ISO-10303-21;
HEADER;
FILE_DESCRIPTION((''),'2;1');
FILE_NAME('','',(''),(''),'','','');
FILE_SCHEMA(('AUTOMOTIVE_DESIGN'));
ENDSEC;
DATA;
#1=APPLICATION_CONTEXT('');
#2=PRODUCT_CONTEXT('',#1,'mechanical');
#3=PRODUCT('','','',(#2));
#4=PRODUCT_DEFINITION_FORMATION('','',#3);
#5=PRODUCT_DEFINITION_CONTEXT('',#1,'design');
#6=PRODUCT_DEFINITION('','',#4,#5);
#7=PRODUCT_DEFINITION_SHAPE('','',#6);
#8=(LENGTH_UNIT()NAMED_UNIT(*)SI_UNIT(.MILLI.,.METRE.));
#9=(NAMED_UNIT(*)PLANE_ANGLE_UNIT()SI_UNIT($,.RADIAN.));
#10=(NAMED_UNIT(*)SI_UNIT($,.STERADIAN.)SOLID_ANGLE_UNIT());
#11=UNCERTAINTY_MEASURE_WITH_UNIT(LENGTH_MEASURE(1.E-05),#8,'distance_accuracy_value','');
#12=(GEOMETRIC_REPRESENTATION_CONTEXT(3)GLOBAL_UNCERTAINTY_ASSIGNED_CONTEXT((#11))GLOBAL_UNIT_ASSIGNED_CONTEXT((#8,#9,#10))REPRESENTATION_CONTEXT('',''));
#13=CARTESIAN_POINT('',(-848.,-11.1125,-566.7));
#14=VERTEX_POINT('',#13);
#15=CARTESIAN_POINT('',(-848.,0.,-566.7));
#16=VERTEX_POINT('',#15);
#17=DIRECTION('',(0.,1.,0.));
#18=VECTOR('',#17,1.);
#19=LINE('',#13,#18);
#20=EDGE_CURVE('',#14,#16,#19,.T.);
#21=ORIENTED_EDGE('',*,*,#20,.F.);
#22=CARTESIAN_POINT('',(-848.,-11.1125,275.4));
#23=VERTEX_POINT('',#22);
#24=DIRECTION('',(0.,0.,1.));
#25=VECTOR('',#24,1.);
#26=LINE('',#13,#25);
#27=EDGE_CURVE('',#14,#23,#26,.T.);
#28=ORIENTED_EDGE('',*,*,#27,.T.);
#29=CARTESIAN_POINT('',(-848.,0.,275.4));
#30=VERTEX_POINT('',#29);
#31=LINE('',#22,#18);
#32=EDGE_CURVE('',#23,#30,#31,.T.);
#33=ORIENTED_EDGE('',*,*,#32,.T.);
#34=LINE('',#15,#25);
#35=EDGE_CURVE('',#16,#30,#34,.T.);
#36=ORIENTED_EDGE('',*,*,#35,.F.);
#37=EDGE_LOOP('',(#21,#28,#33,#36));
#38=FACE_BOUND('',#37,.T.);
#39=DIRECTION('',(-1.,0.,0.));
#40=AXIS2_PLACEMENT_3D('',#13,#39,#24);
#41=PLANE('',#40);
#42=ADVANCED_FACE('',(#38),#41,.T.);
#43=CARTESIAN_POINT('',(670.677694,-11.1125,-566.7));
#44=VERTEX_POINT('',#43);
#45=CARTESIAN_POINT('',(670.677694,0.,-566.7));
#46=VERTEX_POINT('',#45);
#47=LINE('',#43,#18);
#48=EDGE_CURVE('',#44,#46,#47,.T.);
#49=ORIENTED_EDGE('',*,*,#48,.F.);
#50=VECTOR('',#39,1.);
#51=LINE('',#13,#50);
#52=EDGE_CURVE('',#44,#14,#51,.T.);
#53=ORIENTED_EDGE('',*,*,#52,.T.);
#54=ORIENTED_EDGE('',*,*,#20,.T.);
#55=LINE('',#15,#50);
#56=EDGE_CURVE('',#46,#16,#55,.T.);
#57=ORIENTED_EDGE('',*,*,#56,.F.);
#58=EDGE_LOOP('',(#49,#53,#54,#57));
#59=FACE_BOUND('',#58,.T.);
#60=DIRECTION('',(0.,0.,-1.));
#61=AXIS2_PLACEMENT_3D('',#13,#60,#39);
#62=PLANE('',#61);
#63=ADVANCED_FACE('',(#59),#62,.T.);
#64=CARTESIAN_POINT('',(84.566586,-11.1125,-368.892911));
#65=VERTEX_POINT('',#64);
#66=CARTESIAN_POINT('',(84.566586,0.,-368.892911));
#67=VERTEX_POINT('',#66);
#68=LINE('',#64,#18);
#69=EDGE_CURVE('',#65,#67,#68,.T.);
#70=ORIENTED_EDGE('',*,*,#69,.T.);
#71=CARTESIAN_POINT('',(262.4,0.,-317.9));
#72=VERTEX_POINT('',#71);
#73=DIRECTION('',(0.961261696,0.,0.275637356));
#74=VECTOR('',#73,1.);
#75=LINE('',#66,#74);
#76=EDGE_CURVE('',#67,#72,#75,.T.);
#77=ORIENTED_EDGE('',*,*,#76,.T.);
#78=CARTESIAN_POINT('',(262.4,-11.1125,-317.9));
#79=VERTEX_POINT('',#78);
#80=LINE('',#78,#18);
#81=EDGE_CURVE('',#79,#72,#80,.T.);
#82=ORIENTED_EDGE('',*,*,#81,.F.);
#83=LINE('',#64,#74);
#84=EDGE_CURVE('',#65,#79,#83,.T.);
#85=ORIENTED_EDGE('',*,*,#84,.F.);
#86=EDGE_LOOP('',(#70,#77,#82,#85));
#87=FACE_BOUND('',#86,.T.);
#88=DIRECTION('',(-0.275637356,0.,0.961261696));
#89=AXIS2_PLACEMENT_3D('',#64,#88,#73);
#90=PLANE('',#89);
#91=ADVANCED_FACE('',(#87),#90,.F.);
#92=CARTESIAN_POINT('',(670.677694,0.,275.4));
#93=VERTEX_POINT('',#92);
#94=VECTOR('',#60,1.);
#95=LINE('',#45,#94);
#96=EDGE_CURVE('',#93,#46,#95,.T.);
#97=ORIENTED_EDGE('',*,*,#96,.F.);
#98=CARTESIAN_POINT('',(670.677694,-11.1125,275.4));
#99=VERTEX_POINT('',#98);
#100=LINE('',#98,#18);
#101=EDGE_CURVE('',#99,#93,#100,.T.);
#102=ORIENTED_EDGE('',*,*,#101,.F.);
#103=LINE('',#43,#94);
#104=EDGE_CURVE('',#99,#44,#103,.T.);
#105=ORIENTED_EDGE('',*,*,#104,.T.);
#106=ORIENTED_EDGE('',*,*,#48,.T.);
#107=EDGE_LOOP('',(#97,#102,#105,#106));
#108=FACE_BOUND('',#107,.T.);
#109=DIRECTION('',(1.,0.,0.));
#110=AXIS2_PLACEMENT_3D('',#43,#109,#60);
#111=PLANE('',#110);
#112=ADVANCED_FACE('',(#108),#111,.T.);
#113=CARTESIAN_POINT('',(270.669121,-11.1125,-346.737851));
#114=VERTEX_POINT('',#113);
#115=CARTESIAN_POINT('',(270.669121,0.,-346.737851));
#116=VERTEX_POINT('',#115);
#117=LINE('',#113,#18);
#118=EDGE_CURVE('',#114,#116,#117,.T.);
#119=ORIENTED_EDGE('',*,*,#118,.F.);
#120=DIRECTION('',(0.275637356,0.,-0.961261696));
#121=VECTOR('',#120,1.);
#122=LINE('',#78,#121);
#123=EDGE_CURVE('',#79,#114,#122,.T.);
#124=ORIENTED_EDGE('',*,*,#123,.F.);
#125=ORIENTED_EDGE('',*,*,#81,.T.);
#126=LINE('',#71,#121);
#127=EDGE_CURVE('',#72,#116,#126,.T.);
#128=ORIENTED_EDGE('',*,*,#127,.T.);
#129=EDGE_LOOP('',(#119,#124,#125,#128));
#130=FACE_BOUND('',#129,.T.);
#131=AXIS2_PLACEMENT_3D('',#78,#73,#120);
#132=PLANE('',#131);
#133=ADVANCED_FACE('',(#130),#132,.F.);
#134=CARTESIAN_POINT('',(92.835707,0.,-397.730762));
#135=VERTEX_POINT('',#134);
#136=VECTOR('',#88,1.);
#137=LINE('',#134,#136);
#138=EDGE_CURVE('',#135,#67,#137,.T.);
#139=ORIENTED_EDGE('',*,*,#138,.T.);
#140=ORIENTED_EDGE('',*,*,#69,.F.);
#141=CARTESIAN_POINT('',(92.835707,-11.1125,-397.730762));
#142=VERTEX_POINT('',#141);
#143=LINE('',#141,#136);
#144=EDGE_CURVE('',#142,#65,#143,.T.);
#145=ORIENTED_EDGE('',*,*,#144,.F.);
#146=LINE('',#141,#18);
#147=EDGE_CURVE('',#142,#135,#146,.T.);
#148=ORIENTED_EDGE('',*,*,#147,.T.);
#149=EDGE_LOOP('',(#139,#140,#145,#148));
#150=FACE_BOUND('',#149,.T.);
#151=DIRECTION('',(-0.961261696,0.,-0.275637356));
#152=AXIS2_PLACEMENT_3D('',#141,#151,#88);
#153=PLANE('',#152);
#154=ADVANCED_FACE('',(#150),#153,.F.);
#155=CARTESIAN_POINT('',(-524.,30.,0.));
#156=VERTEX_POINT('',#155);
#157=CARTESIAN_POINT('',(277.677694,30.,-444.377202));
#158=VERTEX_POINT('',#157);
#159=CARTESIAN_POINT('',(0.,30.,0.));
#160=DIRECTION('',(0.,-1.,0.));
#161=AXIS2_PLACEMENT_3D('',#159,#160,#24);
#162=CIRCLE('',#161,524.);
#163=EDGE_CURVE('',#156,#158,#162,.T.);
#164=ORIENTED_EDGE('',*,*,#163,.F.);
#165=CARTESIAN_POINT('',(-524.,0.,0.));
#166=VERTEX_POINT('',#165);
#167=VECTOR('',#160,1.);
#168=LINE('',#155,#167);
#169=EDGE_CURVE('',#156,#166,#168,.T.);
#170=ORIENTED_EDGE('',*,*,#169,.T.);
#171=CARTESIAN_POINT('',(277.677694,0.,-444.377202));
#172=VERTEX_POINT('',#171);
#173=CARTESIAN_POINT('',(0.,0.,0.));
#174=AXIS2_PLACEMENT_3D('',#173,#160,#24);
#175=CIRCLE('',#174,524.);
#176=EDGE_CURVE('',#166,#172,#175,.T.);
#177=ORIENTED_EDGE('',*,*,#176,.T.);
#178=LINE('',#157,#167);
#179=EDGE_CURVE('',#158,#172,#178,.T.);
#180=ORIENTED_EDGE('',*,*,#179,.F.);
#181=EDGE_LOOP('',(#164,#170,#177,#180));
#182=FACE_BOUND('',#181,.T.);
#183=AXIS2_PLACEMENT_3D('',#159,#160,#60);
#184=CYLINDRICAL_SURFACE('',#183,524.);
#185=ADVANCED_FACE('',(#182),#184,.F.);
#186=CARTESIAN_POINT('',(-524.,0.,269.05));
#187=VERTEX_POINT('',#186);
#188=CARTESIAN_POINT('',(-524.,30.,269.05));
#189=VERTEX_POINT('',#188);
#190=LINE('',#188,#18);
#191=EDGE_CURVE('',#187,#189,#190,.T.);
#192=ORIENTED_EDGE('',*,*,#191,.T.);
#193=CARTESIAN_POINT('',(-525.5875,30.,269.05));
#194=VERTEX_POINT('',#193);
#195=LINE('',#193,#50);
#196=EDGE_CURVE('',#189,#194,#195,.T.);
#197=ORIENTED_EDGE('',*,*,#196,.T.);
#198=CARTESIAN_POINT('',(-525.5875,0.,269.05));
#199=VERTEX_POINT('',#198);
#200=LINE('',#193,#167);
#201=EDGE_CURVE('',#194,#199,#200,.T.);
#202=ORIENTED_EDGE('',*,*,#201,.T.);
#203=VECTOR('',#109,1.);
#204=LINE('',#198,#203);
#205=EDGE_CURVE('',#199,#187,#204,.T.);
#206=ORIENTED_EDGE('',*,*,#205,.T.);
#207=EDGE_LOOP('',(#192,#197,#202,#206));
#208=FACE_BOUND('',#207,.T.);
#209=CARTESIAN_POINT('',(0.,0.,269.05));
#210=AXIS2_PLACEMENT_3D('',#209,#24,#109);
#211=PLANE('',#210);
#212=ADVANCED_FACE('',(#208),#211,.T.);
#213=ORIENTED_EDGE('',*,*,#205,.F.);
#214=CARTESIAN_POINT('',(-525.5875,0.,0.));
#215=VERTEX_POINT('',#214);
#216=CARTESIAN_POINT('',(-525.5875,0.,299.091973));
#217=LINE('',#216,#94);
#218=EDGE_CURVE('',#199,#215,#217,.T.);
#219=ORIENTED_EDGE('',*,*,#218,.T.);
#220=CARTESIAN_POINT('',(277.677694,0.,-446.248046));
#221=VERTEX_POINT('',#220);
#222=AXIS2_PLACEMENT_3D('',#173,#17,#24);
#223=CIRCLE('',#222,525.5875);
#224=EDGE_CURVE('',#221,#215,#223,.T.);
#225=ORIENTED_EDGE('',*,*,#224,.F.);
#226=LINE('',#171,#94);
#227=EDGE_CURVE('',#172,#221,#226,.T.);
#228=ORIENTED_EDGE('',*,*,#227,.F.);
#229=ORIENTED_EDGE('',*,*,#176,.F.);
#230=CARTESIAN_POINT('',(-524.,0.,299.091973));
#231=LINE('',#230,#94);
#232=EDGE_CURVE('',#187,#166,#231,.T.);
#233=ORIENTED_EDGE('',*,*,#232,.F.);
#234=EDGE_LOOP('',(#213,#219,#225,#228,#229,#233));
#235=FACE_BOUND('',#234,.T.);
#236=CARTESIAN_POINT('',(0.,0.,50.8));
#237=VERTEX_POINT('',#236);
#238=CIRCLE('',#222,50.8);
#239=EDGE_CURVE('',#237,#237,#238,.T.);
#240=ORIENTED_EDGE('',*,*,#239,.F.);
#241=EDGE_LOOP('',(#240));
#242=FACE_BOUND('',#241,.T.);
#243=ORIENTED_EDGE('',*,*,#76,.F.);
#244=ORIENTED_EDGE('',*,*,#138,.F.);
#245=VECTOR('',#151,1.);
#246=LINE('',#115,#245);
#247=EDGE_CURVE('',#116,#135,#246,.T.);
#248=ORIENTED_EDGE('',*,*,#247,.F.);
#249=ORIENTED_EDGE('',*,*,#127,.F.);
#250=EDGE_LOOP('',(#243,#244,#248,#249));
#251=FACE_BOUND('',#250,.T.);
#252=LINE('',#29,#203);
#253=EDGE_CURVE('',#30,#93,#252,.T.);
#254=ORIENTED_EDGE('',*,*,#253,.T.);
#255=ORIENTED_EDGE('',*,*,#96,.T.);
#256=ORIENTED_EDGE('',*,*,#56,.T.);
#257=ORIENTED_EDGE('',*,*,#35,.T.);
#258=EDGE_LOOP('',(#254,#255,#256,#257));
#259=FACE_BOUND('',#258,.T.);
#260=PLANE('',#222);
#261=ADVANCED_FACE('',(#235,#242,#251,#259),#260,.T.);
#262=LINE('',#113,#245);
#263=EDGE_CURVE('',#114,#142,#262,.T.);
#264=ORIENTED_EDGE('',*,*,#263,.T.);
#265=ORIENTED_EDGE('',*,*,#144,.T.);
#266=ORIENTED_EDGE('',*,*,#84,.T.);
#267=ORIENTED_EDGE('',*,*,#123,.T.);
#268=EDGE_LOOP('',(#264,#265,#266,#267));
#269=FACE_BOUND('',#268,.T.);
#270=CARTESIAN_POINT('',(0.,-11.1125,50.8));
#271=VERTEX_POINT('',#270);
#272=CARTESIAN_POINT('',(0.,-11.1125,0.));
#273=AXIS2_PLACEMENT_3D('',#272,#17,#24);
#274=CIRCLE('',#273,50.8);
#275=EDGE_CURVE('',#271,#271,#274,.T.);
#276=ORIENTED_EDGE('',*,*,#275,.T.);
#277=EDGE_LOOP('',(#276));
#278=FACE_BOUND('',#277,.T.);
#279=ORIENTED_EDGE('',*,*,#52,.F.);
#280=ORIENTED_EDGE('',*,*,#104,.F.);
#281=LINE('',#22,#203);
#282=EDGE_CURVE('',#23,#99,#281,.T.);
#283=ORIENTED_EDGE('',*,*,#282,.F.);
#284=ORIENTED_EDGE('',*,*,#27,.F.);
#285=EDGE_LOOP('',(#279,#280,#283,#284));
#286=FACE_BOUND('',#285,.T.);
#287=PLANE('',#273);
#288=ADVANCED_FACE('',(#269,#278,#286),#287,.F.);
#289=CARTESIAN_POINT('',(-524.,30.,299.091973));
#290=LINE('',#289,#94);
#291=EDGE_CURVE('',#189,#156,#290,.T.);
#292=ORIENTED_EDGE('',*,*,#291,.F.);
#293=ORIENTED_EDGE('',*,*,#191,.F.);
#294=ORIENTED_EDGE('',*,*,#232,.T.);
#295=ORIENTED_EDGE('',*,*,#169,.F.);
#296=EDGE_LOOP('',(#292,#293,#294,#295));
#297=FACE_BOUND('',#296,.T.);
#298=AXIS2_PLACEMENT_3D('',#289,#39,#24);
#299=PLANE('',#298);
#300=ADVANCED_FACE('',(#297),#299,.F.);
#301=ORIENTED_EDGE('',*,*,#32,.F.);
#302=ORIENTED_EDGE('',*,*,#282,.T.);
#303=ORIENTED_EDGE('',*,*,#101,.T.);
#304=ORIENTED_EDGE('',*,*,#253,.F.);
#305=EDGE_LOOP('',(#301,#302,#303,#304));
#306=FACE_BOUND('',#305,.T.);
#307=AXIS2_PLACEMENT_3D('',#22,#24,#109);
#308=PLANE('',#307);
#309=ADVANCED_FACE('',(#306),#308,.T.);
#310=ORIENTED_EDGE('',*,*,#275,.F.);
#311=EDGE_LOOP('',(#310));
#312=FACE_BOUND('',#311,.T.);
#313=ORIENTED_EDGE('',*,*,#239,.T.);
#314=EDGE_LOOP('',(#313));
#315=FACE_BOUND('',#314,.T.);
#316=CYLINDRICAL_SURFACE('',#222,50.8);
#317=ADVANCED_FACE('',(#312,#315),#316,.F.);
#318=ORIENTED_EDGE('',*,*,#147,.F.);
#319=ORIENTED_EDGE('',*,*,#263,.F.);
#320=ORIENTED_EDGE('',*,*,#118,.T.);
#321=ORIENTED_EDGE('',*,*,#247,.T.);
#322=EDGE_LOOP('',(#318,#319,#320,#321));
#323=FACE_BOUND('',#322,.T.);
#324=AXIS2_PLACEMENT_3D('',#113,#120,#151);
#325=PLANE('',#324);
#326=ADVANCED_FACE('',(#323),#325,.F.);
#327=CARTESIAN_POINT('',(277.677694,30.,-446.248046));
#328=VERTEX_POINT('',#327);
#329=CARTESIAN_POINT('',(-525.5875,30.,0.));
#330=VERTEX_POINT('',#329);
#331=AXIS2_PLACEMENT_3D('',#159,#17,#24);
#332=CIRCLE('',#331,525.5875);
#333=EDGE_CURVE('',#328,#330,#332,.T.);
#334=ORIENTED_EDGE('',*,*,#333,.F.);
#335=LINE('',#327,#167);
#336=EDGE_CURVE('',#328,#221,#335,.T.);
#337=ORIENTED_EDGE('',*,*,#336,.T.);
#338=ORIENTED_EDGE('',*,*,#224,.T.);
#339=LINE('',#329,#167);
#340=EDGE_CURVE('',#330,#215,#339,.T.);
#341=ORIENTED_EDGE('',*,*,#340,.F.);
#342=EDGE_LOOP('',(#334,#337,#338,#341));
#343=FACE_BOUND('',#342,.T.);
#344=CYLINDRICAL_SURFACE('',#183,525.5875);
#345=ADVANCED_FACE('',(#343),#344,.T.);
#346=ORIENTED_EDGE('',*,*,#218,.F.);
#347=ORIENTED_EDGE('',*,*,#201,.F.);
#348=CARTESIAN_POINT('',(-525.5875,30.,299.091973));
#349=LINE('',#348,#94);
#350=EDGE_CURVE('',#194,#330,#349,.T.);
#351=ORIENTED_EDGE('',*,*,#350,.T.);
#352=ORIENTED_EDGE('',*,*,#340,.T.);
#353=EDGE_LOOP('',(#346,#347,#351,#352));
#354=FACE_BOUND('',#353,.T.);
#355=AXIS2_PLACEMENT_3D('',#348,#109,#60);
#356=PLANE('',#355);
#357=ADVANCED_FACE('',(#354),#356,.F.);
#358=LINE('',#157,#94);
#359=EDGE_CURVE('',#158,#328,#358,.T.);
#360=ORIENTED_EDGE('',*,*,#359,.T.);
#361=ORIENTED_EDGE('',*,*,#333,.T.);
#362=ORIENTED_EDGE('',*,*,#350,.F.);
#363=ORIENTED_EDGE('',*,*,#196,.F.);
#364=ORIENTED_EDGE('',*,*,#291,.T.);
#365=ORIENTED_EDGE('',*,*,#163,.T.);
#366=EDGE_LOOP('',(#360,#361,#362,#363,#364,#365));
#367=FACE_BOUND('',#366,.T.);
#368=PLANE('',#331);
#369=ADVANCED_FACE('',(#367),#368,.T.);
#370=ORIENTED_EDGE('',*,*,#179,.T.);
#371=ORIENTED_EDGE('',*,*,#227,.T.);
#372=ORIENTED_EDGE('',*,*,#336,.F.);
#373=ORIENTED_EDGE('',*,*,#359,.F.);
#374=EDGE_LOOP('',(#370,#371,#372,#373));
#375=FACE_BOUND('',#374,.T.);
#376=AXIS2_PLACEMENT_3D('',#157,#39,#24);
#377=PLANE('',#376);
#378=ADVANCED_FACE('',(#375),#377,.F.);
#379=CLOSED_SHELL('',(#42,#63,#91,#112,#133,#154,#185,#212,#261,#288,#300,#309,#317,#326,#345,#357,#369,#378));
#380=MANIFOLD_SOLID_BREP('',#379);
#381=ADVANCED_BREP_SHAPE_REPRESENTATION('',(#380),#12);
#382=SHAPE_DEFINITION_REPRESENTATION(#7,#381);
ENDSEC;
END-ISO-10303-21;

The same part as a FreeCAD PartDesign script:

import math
import FreeCAD as App
import Part
import Sketcher
from FreeCAD import Vector
Q = App.Units.Quantity

doc = App.newDocument("Part")
body = doc.addObject("PartDesign::Body", "Body")

# Sketch on XZ plane
sketch1 = body.newObject("Sketcher::SketchObject", "Sketch")
sketch1.AttachmentSupport = (doc.getObject("XZ_Plane"), [""])
sketch1.MapMode = "FlatFace"
sketch1.addGeometry([
    Part.LineSegment(Vector(-525.6, 0, 0), Vector(-524, 0, 0)),
    Part.ArcOfCircle(Part.Circle(Vector(0, 0, 0), Vector(0, 0, 1), 524), math.radians(180), math.radians(302)),
    Part.LineSegment(Vector(277.7, -444.4, 0), Vector(277.7, -446.2, 0)),
    Part.ArcOfCircle(Part.Circle(Vector(0, 0, 0), Vector(0, 0, 1), 525.6), math.radians(180), math.radians(302)),
], False)
sketch1.addConstraint([
    Sketcher.Constraint("Coincident", 0, 2, 1, 1),
    Sketcher.Constraint("Coincident", 1, 2, 2, 1),
    Sketcher.Constraint("Coincident", 2, 2, 3, 2),
    Sketcher.Constraint("Coincident", 3, 1, 0, 1),
    Sketcher.Constraint("Horizontal", 0),
    Sketcher.Constraint("Vertical", 2),
    Sketcher.Constraint("Coincident", 1, 3, -1, 1),
    Sketcher.Constraint("Coincident", 3, 3, -1, 1),
    Sketcher.Constraint("PointOnObject", 0, 2, -1),
    Sketcher.Constraint("Radius", 1, 524.0),
    Sketcher.Constraint("Radius", 3, 525.5875),
    Sketcher.Constraint("DistanceX", -1, 1, 2, 2, 277.677694),
])
pad1 = body.newObject("PartDesign::Pad", "Pad")
pad1.Profile = sketch1
pad1.Length = 30
pad1.Reversed = True

# Sketch on XZ plane
sketch2 = body.newObject("Sketcher::SketchObject", "Sketch001")
sketch2.AttachmentSupport = (doc.getObject("XZ_Plane"), [""])
sketch2.MapMode = "FlatFace"
sketch2.addGeometry([
    Part.LineSegment(Vector(-848, -567, 0), Vector(-848, 275, 0)),
    Part.LineSegment(Vector(-848, 275, 0), Vector(671, 275, 0)),
    Part.LineSegment(Vector(671, 275, 0), Vector(671, -567, 0)),
    Part.LineSegment(Vector(671, -567, 0), Vector(-848, -567, 0)),
], False)
sketch2.addConstraint([
    Sketcher.Constraint("Coincident", 0, 2, 1, 1),
    Sketcher.Constraint("Coincident", 1, 2, 2, 1),
    Sketcher.Constraint("Coincident", 2, 2, 3, 1),
    Sketcher.Constraint("Coincident", 3, 2, 0, 1),
    Sketcher.Constraint("Vertical", 0),
    Sketcher.Constraint("Horizontal", 1),
    Sketcher.Constraint("Vertical", 2),
    Sketcher.Constraint("Horizontal", 3),
    Sketcher.Constraint("DistanceY", 0, 1, 0, 2, 842.1),
    Sketcher.Constraint("DistanceX", 0, 2, -1, 1, 848.0),
    Sketcher.Constraint("DistanceY", -1, 1, 0, 2, 275.4),
    Sketcher.Constraint("DistanceX", 1, 1, 1, 2, 1518.677694),
])
pad2 = body.newObject("PartDesign::Pad", "Pad001")
pad2.Profile = sketch2
pad2.Length = 11.1125

# Sketch on XZ plane
sketch3 = body.newObject("Sketcher::SketchObject", "Sketch002")
sketch3.AttachmentSupport = (doc.getObject("XZ_Plane"), [""])
sketch3.MapMode = "FlatFace"
sketch3.addGeometry(Part.Circle(Vector(0, 0, 0), Vector(0, 0, 1), 51), False)
sketch3.addConstraint([
    Sketcher.Constraint("Coincident", 0, 3, -1, 1),
    Sketcher.Constraint("Diameter", 0, 101.6),
])
doc.recompute()
hole = body.newObject("PartDesign::Hole", "Hole")
hole.Profile = sketch3
hole.ThreadType = "None"
hole.Diameter = 101.6
hole.DepthType = "ThroughAll"
hole.Reversed = True

# Sketch on XY plane
sketch4 = body.newObject("Sketcher::SketchObject", "Sketch003")
sketch4.AttachmentSupport = (doc.getObject("XY_Plane"), [""])
sketch4.MapMode = "FlatFace"
sketch4.addGeometry([
    Part.LineSegment(Vector(-525.6, 30, 0), Vector(-525.6, 0, 0)),
    Part.LineSegment(Vector(-525.6, 0, 0), Vector(-524, 0, 0)),
    Part.LineSegment(Vector(-524, 0, 0), Vector(-524, 30, 0)),
    Part.LineSegment(Vector(-524, 30, 0), Vector(-525.6, 30, 0)),
], False)
sketch4.addConstraint([
    Sketcher.Constraint("Coincident", 0, 2, 1, 1),
    Sketcher.Constraint("Coincident", 1, 2, 2, 1),
    Sketcher.Constraint("Coincident", 2, 2, 3, 1),
    Sketcher.Constraint("Coincident", 3, 2, 0, 1),
    Sketcher.Constraint("Vertical", 0),
    Sketcher.Constraint("Horizontal", 1),
    Sketcher.Constraint("Vertical", 2),
    Sketcher.Constraint("Horizontal", 3),
    Sketcher.Constraint("PointOnObject", 0, 2, -1),
    Sketcher.Constraint("DistanceY", 0, 2, 0, 1, 30.0),
    Sketcher.Constraint("DistanceX", 1, 2, -1, 1, 524.0),
    Sketcher.Constraint("DistanceX", 1, 1, 1, 2, 1.5875),
])
pad3 = body.newObject("PartDesign::Pad", "Pad002")
pad3.Profile = sketch4
pad3.Length = 269.05

# Sketch on XZ plane
sketch5 = body.newObject("Sketcher::SketchObject", "Sketch004")
sketch5.AttachmentSupport = (doc.getObject("XZ_Plane"), [""])
sketch5.MapMode = "FlatFace"
sketch5.addGeometry([
    Part.LineSegment(Vector(271, -347, 0), Vector(93, -398, 0)),
    Part.LineSegment(Vector(93, -398, 0), Vector(85, -369, 0)),
    Part.LineSegment(Vector(85, -369, 0), Vector(262, -318, 0)),
    Part.LineSegment(Vector(262, -318, 0), Vector(271, -347, 0)),
], False)
sketch5.addConstraint([
    Sketcher.Constraint("Coincident", 0, 2, 1, 1),
    Sketcher.Constraint("Coincident", 1, 2, 2, 1),
    Sketcher.Constraint("Coincident", 2, 2, 3, 1),
    Sketcher.Constraint("Coincident", 3, 2, 0, 1),
    Sketcher.Constraint("Perpendicular", 0, 1),
    Sketcher.Constraint("Perpendicular", 1, 2),
    Sketcher.Constraint("Perpendicular", 2, 3),
    Sketcher.Constraint("Angle", 0, Q("-164 deg")),
    Sketcher.Constraint("Distance", 0, 185.0),
    Sketcher.Constraint("Distance", 1, 30.0),
    Sketcher.Constraint("DistanceX", -1, 1, 2, 2, 262.4),
    Sketcher.Constraint("DistanceY", 2, 2, -1, 1, 317.9),
])
pocket1 = body.newObject("PartDesign::Pocket", "Pocket")
pocket1.Profile = sketch5
pocket1.Type = "ThroughAll"
pocket1.Reversed = True

doc.recompute()
